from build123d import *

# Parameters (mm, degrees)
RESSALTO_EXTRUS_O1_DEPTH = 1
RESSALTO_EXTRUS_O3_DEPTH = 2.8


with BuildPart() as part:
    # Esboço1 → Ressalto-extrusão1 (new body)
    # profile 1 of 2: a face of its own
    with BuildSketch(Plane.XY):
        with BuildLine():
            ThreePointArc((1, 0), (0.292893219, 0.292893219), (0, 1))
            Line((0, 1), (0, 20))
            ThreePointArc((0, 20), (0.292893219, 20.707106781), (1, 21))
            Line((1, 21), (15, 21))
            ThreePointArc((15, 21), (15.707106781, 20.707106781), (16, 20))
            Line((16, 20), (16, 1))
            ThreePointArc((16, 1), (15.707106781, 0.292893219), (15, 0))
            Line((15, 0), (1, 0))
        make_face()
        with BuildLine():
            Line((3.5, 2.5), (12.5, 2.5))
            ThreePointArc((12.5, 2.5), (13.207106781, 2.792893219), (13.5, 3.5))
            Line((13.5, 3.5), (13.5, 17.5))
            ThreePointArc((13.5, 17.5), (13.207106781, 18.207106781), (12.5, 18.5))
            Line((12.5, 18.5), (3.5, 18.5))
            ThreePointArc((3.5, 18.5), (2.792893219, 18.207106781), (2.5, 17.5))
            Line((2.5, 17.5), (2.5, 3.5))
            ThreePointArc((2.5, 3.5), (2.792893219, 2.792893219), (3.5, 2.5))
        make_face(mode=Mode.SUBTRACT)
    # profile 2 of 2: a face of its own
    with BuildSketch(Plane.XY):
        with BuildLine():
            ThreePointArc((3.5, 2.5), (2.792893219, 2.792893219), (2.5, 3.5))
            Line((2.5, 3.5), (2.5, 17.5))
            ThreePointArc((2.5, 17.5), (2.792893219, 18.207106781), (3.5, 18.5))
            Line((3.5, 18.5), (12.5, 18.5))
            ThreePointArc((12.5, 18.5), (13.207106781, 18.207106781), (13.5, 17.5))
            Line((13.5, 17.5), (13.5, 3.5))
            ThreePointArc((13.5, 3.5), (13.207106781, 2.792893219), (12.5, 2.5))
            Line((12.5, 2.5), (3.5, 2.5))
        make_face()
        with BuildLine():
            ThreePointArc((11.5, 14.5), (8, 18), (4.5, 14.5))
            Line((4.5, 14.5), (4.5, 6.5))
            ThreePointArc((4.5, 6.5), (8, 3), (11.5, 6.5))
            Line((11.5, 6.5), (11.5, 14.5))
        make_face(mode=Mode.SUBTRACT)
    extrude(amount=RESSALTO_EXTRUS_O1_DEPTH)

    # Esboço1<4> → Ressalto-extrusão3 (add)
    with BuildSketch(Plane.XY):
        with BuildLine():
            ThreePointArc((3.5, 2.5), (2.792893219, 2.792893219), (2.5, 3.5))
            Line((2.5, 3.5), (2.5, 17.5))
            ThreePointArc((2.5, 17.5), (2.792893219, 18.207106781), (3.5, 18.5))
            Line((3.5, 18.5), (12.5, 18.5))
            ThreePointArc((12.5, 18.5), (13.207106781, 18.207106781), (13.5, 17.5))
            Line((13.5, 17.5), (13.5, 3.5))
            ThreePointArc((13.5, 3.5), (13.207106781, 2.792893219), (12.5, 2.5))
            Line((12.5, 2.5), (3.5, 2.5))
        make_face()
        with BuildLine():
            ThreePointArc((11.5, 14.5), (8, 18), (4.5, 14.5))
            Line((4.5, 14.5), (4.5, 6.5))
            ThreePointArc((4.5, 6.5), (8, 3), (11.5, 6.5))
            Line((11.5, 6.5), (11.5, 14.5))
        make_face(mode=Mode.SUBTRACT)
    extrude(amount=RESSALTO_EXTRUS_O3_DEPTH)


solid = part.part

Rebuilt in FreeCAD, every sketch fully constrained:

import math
import FreeCAD as App
import Part
import Sketcher

doc = App.newDocument("Part")
body = doc.addObject("PartDesign::Body", "Body")

# Sketch on XY plane
sketch1 = body.newObject("Sketcher::SketchObject", "Sketch")
sketch1.AttachmentSupport = (doc.getObject("XY_Plane"), [""])
sketch1.MapMode = "FlatFace"
sketch1.addGeometry([
    Part.ArcOfCircle(Part.Circle(App.Vector(1, 1, 0), App.Vector(0, 0, 1), 1), math.radians(-180), math.radians(-90)),  # 0
    Part.LineSegment(App.Vector(1, 0, 0), App.Vector(15, 0, 0)),  # 1
    Part.ArcOfCircle(Part.Circle(App.Vector(15, 1, 0), App.Vector(0, 0, 1), 1), math.radians(-90), math.radians(0)),  # 2
    Part.LineSegment(App.Vector(16, 1, 0), App.Vector(16, 20, 0)),  # 3
    Part.ArcOfCircle(Part.Circle(App.Vector(15, 20, 0), App.Vector(0, 0, 1), 1), math.radians(0), math.radians(90)),  # 4
    Part.LineSegment(App.Vector(15, 21, 0), App.Vector(1, 21, 0)),  # 5
    Part.ArcOfCircle(Part.Circle(App.Vector(1, 20, 0), App.Vector(0, 0, 1), 1), math.radians(90), math.radians(180)),  # 6
    Part.LineSegment(App.Vector(0, 20, 0), App.Vector(0, 1, 0)),  # 7
    Part.ArcOfCircle(Part.Circle(App.Vector(8, 14.5, 0), App.Vector(0, 0, 1), 3.5), math.radians(0), math.radians(180)),  # 8
    Part.LineSegment(App.Vector(11.5, 14.5, 0), App.Vector(11.5, 6.5, 0)),  # 9
    Part.ArcOfCircle(Part.Circle(App.Vector(8, 6.5, 0), App.Vector(0, 0, 1), 3.5), math.radians(180), math.radians(360)),  # 10
    Part.LineSegment(App.Vector(4.5, 6.5, 0), App.Vector(4.5, 14.5, 0)),  # 11
], False)
sketch1.addConstraint([
    Sketcher.Constraint("Tangent", 0, 2, 1, 1),
    Sketcher.Constraint("Tangent", 1, 2, 2, 1),
    Sketcher.Constraint("Tangent", 2, 2, 3, 1),
    Sketcher.Constraint("Tangent", 3, 2, 4, 1),
    Sketcher.Constraint("Tangent", 4, 2, 5, 1),
    Sketcher.Constraint("Tangent", 5, 2, 6, 1),
    Sketcher.Constraint("Tangent", 6, 2, 7, 1),
    Sketcher.Constraint("Tangent", 7, 2, 0, 1),
    Sketcher.Constraint("Tangent", 8, 1, 9, 1),
    Sketcher.Constraint("Tangent", 9, 2, 10, 2),
    Sketcher.Constraint("Tangent", 10, 1, 11, 1),
    Sketcher.Constraint("Tangent", 11, 2, 8, 2),
    Sketcher.Constraint("Horizontal", 1),
    Sketcher.Constraint("Vertical", 3),
    Sketcher.Constraint("Horizontal", 5),
    Sketcher.Constraint("Vertical", 7),
    Sketcher.Constraint("Vertical", 9),
    Sketcher.Constraint("Vertical", 11),
    Sketcher.Constraint("Equal", 0, 2),
    Sketcher.Constraint("Equal", 2, 4),
    Sketcher.Constraint("Equal", 4, 6),
    Sketcher.Constraint("PointOnObject", 0, 2, -1),
    Sketcher.Constraint("PointOnObject", 6, 2, -2),
    Sketcher.Constraint("Radius", 0, 1.0),
    Sketcher.Constraint("Radius", 8, 3.5),
    Sketcher.Constraint("DistanceX", 1, 1, 1, 2, 14.0),
    Sketcher.Constraint("DistanceY", 3, 1, 3, 2, 19.0),
    Sketcher.Constraint("DistanceY", 9, 2, 9, 1, 8.0),
    Sketcher.Constraint("DistanceX", -1, 1, 8, 3, 8.0),
    Sketcher.Constraint("DistanceY", -1, 1, 8, 3, 14.5),
])
pad1 = body.newObject("PartDesign::Pad", "Pad")
pad1.Profile = sketch1
pad1.Length = 1

# Sketch on XY plane
sketch2 = body.newObject("Sketcher::SketchObject", "Sketch001")
sketch2.AttachmentSupport = (doc.getObject("XY_Plane"), [""])
sketch2.MapMode = "FlatFace"
sketch2.addGeometry([
    Part.ArcOfCircle(Part.Circle(App.Vector(3.5, 3.5, 0), App.Vector(0, 0, 1), 1), math.radians(-180), math.radians(-90)),  # 0
    Part.LineSegment(App.Vector(3.5, 2.5, 0), App.Vector(12.5, 2.5, 0)),  # 1
    Part.ArcOfCircle(Part.Circle(App.Vector(12.5, 3.5, 0), App.Vector(0, 0, 1), 1), math.radians(-90), math.radians(0)),  # 2
    Part.LineSegment(App.Vector(13.5, 3.5, 0), App.Vector(13.5, 17.5, 0)),  # 3
    Part.ArcOfCircle(Part.Circle(App.Vector(12.5, 17.5, 0), App.Vector(0, 0, 1), 1), math.radians(0), math.radians(90)),  # 4
    Part.LineSegment(App.Vector(12.5, 18.5, 0), App.Vector(3.5, 18.5, 0)),  # 5
    Part.ArcOfCircle(Part.Circle(App.Vector(3.5, 17.5, 0), App.Vector(0, 0, 1), 1), math.radians(90), math.radians(180)),  # 6
    Part.LineSegment(App.Vector(2.5, 17.5, 0), App.Vector(2.5, 3.5, 0)),  # 7
    Part.LineSegment(App.Vector(11.5, 14.5, 0), App.Vector(11.5, 6.5, 0)),  # 8
    Part.ArcOfCircle(Part.Circle(App.Vector(8, 6.5, 0), App.Vector(0, 0, 1), 3.5), math.radians(180), math.radians(360)),  # 9
    Part.LineSegment(App.Vector(4.5, 6.5, 0), App.Vector(4.5, 14.5, 0)),  # 10
    Part.ArcOfCircle(Part.Circle(App.Vector(8, 14.5, 0), App.Vector(0, 0, 1), 3.5), math.radians(0), math.radians(180)),  # 11
], False)
sketch2.addConstraint([
    Sketcher.Constraint("Tangent", 0, 2, 1, 1),
    Sketcher.Constraint("Tangent", 1, 2, 2, 1),
    Sketcher.Constraint("Tangent", 2, 2, 3, 1),
    Sketcher.Constraint("Tangent", 3, 2, 4, 1),
    Sketcher.Constraint("Tangent", 4, 2, 5, 1),
    Sketcher.Constraint("Tangent", 5, 2, 6, 1),
    Sketcher.Constraint("Tangent", 6, 2, 7, 1),
    Sketcher.Constraint("Tangent", 7, 2, 0, 1),
    Sketcher.Constraint("Tangent", 8, 2, 9, 2),
    Sketcher.Constraint("Tangent", 9, 1, 10, 1),
    Sketcher.Constraint("Tangent", 10, 2, 11, 2),
    Sketcher.Constraint("Tangent", 11, 1, 8, 1),
    Sketcher.Constraint("Horizontal", 1),
    Sketcher.Constraint("Vertical", 3),
    Sketcher.Constraint("Horizontal", 5),
    Sketcher.Constraint("Vertical", 7),
    Sketcher.Constraint("Vertical", 8),
    Sketcher.Constraint("Vertical", 10),
    Sketcher.Constraint("Equal", 0, 2),
    Sketcher.Constraint("Equal", 2, 4),
    Sketcher.Constraint("Equal", 4, 6),
    Sketcher.Constraint("Radius", 0, 1.0),
    Sketcher.Constraint("Radius", 9, 3.5),
    Sketcher.Constraint("DistanceX", 1, 1, 1, 2, 9.0),
    Sketcher.Constraint("DistanceY", 3, 1, 3, 2, 14.0),
    Sketcher.Constraint("DistanceY", 8, 2, 8, 1, 8.0),
    Sketcher.Constraint("DistanceX", -1, 1, 9, 3, 8.0),
    Sketcher.Constraint("DistanceY", 0, 3, 9, 3, 3.0),
    Sketcher.Constraint("DistanceX", 8, 2, 2, 3, 1.0),
    Sketcher.Constraint("DistanceY", -1, 1, 0, 3, 3.5),
])
pad2 = body.newObject("PartDesign::Pad", "Pad001")
pad2.Profile = sketch2
pad2.Length = 2.8

doc.recompute()
